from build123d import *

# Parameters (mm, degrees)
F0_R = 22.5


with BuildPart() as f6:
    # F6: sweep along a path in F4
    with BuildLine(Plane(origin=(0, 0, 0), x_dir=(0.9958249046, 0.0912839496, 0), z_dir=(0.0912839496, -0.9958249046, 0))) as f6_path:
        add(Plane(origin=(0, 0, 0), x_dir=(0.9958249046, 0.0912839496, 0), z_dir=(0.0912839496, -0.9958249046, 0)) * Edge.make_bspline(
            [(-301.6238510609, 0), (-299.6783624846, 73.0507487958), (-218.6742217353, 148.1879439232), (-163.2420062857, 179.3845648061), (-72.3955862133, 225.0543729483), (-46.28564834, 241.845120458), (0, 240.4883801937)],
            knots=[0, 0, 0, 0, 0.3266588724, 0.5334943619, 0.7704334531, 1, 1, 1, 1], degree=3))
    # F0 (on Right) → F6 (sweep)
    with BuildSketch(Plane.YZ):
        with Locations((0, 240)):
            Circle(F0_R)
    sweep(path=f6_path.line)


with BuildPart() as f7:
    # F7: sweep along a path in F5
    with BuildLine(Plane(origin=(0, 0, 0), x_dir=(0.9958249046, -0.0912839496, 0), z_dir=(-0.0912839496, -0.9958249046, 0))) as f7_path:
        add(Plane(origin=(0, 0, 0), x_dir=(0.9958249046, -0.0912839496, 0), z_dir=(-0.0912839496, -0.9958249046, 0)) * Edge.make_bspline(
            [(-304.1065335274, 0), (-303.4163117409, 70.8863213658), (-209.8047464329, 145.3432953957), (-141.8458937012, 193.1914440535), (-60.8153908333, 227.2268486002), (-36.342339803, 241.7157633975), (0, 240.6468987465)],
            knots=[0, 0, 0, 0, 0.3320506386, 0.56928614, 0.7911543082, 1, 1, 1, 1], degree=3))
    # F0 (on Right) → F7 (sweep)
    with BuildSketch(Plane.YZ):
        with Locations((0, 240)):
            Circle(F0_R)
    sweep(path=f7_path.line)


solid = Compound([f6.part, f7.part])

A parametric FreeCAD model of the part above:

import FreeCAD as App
import Part
import Sketcher
from FreeCAD import Vector
Q = App.Units.Quantity

doc = App.newDocument("Part")
body = doc.addObject("PartDesign::Body", "Body")

# Sketch on YZ plane
sketch1 = body.newObject("Sketcher::SketchObject", "Sketch")
sketch1.AttachmentSupport = (doc.getObject("YZ_Plane"), [""])
sketch1.MapMode = "FlatFace"
sketch1.addGeometry(Part.Circle(Vector(0, 240, 0), Vector(0, 0, 1), 22.5), False)
sketch1.addConstraint([
    Sketcher.Constraint("PointOnObject", 0, 3, -2),
    Sketcher.Constraint("Diameter", 0, Q("45 mm")),
    Sketcher.Constraint("DistanceY", -1, 1, 0, 3, Q("240 mm")),
])

# Sketch on an angled plane
sketch2 = body.newObject("Sketcher::SketchObject", "Sketch001")
sketch2.Placement = App.Placement(Vector(0, 0, 0), App.Rotation(Vector(0.995824905, 0.09128395, 0), Vector(0, 0, 1.000000001), Vector(0.09128395, -0.995824905, 0), "ZXY"))
sketch2.addGeometry(Part.BSplineCurve([Vector(-301.623851, 0, 0), Vector(-299.678363, 73.050749, 0), Vector(-218.674222, 148.187944, 0), Vector(-163.242006, 179.384565, 0), Vector(-72.395586, 225.054373, 0), Vector(-46.285648, 241.845121, 0), Vector(0, 240.488381, 0)], [4, 1, 1, 1, 4], [0, 0.326658872, 0.533494362, 0.770433453, 1], False, 3, [1, 1, 1, 1, 1, 1, 1], False), False)
sketch2.addConstraint(Sketcher.Constraint("Block", 0))
doc.recompute()

additivepipe = body.newObject("PartDesign::AdditivePipe", "AdditivePipe")
additivepipe.Profile = sketch1
additivepipe.Spine = (sketch2, ["Edge1"])
body2 = doc.addObject("PartDesign::Body", "Body001")

# Sketch on YZ plane
sketch3 = body2.newObject("Sketcher::SketchObject", "Sketch002")
sketch3.AttachmentSupport = (doc.getObject("YZ_Plane001"), [""])
sketch3.MapMode = "FlatFace"
sketch3.addGeometry(Part.Circle(Vector(0, 240, 0), Vector(0, 0, 1), 22.5), False)
sketch3.addConstraint([
    Sketcher.Constraint("PointOnObject", 0, 3, -2),
    Sketcher.Constraint("Diameter", 0, Q("45 mm")),
    Sketcher.Constraint("DistanceY", -1, 1, 0, 3, Q("240 mm")),
])

# Sketch on an angled plane
sketch4 = body2.newObject("Sketcher::SketchObject", "Sketch003")
sketch4.Placement = App.Placement(Vector(0, 0, 0), App.Rotation(Vector(0.995824905, -0.09128395, 0), Vector(0, 0, 1.000000001), Vector(-0.09128395, -0.995824905, 0), "ZXY"))
sketch4.addGeometry(Part.BSplineCurve([Vector(-304.106534, 0, 0), Vector(-303.416312, 70.886321, 0), Vector(-209.804747, 145.343296, 0), Vector(-141.845894, 193.191444, 0), Vector(-60.815391, 227.226849, 0), Vector(-36.34234, 241.715764, 0), Vector(0, 240.646899, 0)], [4, 1, 1, 1, 4], [0, 0.332050639, 0.56928614, 0.791154308, 1], False, 3, [1, 1, 1, 1, 1, 1, 1], False), False)
sketch4.addConstraint(Sketcher.Constraint("Block", 0))
doc.recompute()

additivepipe2 = body2.newObject("PartDesign::AdditivePipe", "AdditivePipe001")
additivepipe2.Profile = sketch3
additivepipe2.Spine = (sketch4, ["Edge1"])

doc.recompute()
